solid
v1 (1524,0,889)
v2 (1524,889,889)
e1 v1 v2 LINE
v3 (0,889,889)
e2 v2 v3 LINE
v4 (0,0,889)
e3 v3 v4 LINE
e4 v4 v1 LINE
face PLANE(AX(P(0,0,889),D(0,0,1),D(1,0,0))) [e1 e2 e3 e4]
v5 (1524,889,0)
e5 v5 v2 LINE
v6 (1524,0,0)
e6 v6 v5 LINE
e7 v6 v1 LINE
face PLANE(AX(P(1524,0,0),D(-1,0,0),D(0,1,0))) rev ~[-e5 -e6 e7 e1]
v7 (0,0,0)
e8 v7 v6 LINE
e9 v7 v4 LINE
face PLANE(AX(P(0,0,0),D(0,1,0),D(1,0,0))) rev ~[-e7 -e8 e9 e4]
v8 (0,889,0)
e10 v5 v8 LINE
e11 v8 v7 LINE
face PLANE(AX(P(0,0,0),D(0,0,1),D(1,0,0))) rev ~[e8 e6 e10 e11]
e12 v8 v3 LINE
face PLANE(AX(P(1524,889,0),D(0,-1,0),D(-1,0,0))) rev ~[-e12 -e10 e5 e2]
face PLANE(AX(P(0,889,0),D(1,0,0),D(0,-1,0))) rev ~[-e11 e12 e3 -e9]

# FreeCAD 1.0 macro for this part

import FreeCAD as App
import Part
import Sketcher
from FreeCAD import Vector
Q = App.Units.Quantity


def add_polygon(sketch, points):
    """Adds a closed chain of lines whose ends are joined by coincident constraints."""
    first, n = sketch.GeometryCount, len(points)
    for a, b in zip(points, points[1:] + points[:1]):
        sketch.addGeometry(Part.LineSegment(App.Vector(*a, 0), App.Vector(*b, 0)), False)
    for i in range(n):
        sketch.addConstraint(Sketcher.Constraint("Coincident", first + i, 2, first + (i + 1) % n, 1))

doc = App.newDocument("Part")
params = doc.addObject("Spreadsheet::Sheet", "Params")
for row, (alias, value) in enumerate([
    ("sketch1_width", "60 in"),
    ("sketch1_height", "35 in"),
    ("pad1_length", "35 in"),
], start=1):
    params.set(f"A{row}", alias)
    params.set(f"B{row}", "=" + value)
    params.setAlias(f"B{row}", alias)

body = doc.addObject("PartDesign::Body", "Body")

sketch1 = doc.addObject("Sketcher::SketchObject", "Sketch")
body.addObject(sketch1)
sketch1.AttachmentSupport = (doc.XY_Plane, [""])
sketch1.MapMode = "FlatFace"
add_polygon(sketch1, [(0, 889), (0, 0), (1524, 0), (1524, 889)])
sketch1.addConstraint(Sketcher.Constraint("Vertical", 0))
sketch1.addConstraint(Sketcher.Constraint("Horizontal", 1))
sketch1.addConstraint(Sketcher.Constraint("Vertical", 2))
sketch1.addConstraint(Sketcher.Constraint("Horizontal", 3))
sketch1.addConstraint(Sketcher.Constraint("Coincident", 0, 2, -1, 1))
sketch1.addConstraint(Sketcher.Constraint("DistanceX", 1, 1, 1, 2, Q("60 in")))
sketch1.addConstraint(Sketcher.Constraint("DistanceY", 0, 2, 0, 1, Q("35 in")))
sketch1.setExpression("Constraints[9]", "Params.sketch1_width")
sketch1.setExpression("Constraints[10]", "Params.sketch1_height")
pad1 = doc.addObject("PartDesign::Pad", "Pad")
body.addObject(pad1)
pad1.Profile = sketch1
pad1.setExpression("Length", "Params.pad1_length")

doc.recompute()
